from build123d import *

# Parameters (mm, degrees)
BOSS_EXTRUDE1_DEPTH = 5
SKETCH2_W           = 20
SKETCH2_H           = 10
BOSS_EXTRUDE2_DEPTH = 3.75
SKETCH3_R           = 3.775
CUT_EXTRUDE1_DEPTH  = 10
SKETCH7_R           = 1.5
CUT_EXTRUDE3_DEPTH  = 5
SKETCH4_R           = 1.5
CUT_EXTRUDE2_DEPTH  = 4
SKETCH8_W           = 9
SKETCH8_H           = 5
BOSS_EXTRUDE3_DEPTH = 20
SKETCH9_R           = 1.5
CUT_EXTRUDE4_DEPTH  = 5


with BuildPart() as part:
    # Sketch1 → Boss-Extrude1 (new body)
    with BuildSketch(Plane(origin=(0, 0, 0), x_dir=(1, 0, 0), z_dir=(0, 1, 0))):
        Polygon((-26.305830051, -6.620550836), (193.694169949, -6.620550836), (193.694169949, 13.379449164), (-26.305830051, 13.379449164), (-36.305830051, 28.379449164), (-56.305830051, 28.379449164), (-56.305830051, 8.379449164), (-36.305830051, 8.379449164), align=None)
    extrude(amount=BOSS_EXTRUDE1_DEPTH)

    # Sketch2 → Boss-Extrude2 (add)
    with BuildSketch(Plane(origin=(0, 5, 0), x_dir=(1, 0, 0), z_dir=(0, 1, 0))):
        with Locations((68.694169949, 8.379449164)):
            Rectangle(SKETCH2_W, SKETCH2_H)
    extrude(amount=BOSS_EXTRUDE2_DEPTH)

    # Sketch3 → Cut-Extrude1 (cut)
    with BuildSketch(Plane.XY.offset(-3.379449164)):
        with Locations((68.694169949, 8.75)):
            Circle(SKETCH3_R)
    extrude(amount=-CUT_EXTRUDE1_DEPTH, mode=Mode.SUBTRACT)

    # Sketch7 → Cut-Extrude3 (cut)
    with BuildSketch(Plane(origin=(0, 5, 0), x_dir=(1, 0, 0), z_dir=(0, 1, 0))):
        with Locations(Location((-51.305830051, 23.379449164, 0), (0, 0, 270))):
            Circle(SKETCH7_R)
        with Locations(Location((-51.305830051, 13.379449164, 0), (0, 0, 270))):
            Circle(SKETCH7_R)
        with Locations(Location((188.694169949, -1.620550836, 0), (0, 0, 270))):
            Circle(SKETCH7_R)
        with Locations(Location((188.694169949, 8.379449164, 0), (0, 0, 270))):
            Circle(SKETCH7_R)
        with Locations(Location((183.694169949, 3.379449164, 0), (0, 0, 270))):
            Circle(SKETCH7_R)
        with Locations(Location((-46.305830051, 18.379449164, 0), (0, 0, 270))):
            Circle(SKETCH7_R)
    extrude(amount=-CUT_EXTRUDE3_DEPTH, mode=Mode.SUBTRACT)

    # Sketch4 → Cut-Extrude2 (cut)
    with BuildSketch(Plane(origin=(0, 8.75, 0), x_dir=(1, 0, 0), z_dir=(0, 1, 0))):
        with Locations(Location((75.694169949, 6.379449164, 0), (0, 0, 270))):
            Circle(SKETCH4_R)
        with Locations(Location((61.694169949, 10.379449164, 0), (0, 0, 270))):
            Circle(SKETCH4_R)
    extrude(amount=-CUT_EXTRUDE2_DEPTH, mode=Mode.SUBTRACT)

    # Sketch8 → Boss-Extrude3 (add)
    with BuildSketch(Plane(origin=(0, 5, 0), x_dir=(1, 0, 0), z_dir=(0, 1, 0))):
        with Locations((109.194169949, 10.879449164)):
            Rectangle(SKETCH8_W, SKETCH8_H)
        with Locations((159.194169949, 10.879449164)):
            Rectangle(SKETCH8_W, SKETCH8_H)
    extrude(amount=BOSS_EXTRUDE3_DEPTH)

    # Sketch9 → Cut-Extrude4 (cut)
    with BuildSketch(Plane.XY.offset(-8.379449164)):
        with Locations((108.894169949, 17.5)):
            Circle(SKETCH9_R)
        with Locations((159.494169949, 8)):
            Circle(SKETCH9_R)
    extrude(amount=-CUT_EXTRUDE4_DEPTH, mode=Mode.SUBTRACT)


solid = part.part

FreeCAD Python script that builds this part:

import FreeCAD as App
import Part
import Sketcher
from FreeCAD import Vector


def add_polygon(sketch, points):
    """Adds a closed chain of lines whose ends are joined by coincident constraints."""
    first, n = sketch.GeometryCount, len(points)
    for a, b in zip(points, points[1:] + points[:1]):
        sketch.addGeometry(Part.LineSegment(App.Vector(*a, 0), App.Vector(*b, 0)), False)
    for i in range(n):
        sketch.addConstraint(Sketcher.Constraint("Coincident", first + i, 2, first + (i + 1) % n, 1))

doc = App.newDocument("Part")
body = doc.addObject("PartDesign::Body", "Body")

sketch1 = body.newObject("Sketcher::SketchObject", "Sketch")
sketch1.AttachmentSupport = (doc.getObject("XZ_Plane"), [""])
sketch1.MapMode = "FlatFace"
add_polygon(sketch1, [(-26, 7), (194, 7), (194, -13), (-26, -13), (-36, -28), (-56, -28), (-56, -8), (-36, -8)])
sketch1.addConstraint([
    Sketcher.Constraint("Horizontal", 0),
    Sketcher.Constraint("Vertical", 1),
    Sketcher.Constraint("Horizontal", 2),
    Sketcher.Constraint("Horizontal", 4),
    Sketcher.Constraint("Vertical", 5),
    Sketcher.Constraint("Horizontal", 6),
    Sketcher.Constraint("Parallel", 3, 7),
    Sketcher.Constraint("Vertical", 3, 2, 6, 2),
    Sketcher.Constraint("Vertical", 2, 2, 7, 2),
    Sketcher.Constraint("Equal", 6, 1),
    Sketcher.Constraint("DistanceX", 0, 1, 0, 2, 220.0),
    Sketcher.Constraint("DistanceX", 4, 2, 4, 1, 20.0),
    Sketcher.Constraint("DistanceX", 3, 2, 2, 2, 10.0),
    Sketcher.Constraint("DistanceY", 3, 2, 2, 2, 15.0),
    Sketcher.Constraint("DistanceX", -1, 1, 0, 2, 193.69417),
    Sketcher.Constraint("DistanceY", -1, 1, 0, 2, 6.620551),
])
pad1 = body.newObject("PartDesign::Pad", "Pad")
pad1.Profile = sketch1
pad1.Length = 5
pad1.Reversed = True

sketch2 = body.newObject("Sketcher::SketchObject", "Sketch001")
sketch2.AttachmentSupport = (doc.getObject("XZ_Plane"), [""])
sketch2.MapMode = "FlatFace"
sketch2.AttachmentOffset = App.Placement(Vector(0, 0, -5), App.Rotation())
add_polygon(sketch2, [(59, -13), (59, -3), (79, -3), (79, -13)])
sketch2.addConstraint([
    Sketcher.Constraint("Vertical", 0),
    Sketcher.Constraint("Horizontal", 1),
    Sketcher.Constraint("Vertical", 2),
    Sketcher.Constraint("Horizontal", 3),
    Sketcher.Constraint("DistanceX", 1, 1, 1, 2, 20.0),
    Sketcher.Constraint("DistanceY", 0, 1, 0, 2, 10.0),
    Sketcher.Constraint("DistanceX", -1, 1, 0, 2, 58.69417),
    Sketcher.Constraint("DistanceY", 0, 2, -1, 1, 3.379449),
])
pad2 = body.newObject("PartDesign::Pad", "Pad001")
pad2.Profile = sketch2
pad2.Length = 3.75
pad2.Reversed = True

sketch3 = body.newObject("Sketcher::SketchObject", "Sketch002")
sketch3.AttachmentSupport = (doc.getObject("XY_Plane"), [""])
sketch3.MapMode = "FlatFace"
sketch3.AttachmentOffset = App.Placement(Vector(0, 0, -3.379449), App.Rotation())
sketch3.addGeometry(Part.Circle(Vector(68.7, 8.8, 0), Vector(0, 0, 1), 3.8), False)
sketch3.addConstraint([
    Sketcher.Constraint("Diameter", 0, 7.55),
    Sketcher.Constraint("DistanceY", -1, 1, 0, 3, 8.75),
    Sketcher.Constraint("DistanceX", -1, 1, 0, 3, 68.69417),
])
pocket1 = body.newObject("PartDesign::Pocket", "Pocket")
pocket1.Profile = sketch3
pocket1.Length = 10

sketch4 = body.newObject("Sketcher::SketchObject", "Sketch003")
sketch4.AttachmentSupport = (doc.getObject("XZ_Plane"), [""])
sketch4.MapMode = "FlatFace"
sketch4.AttachmentOffset = App.Placement(Vector(0, 0, -5), App.Rotation())
sketch4.addGeometry([
    Part.Circle(Vector(-51.3, -23.4, 0), Vector(0, 0, 1), 1.5),
    Part.Circle(Vector(-51.3, -13.4, 0), Vector(0, 0, 1), 1.5),
    Part.Circle(Vector(188.7, 1.6, 0), Vector(0, 0, 1), 1.5),
    Part.Circle(Vector(188.7, -8.4, 0), Vector(0, 0, 1), 1.5),
    Part.Circle(Vector(183.7, -3.4, 0), Vector(0, 0, 1), 1.5),
    Part.Circle(Vector(-46.3, -18.4, 0), Vector(0, 0, 1), 1.5),
], False)
sketch4.addConstraint([
    Sketcher.Constraint("Equal", 0, 1),
    Sketcher.Constraint("Equal", 1, 2),
    Sketcher.Constraint("Equal", 2, 3),
    Sketcher.Constraint("Equal", 3, 4),
    Sketcher.Constraint("Equal", 4, 5),
    Sketcher.Constraint("Vertical", 0, 3, 1, 3),
    Sketcher.Constraint("Vertical", 2, 3, 3, 3),
    Sketcher.Constraint("Diameter", 0, 3.0),
    Sketcher.Constraint("DistanceY", 0, 3, 1, 3, 10.0),
    Sketcher.Constraint("DistanceX", 1, 3, 2, 3, 240.0),
    Sketcher.Constraint("DistanceY", 1, 3, 2, 3, 15.0),
    Sketcher.Constraint("DistanceY", 3, 3, 2, 3, 10.0),
    Sketcher.Constraint("DistanceX", 4, 3, 2, 3, 5.0),
    Sketcher.Constraint("DistanceY", 4, 3, 2, 3, 5.0),
    Sketcher.Constraint("DistanceX", 0, 3, 5, 3, 5.0),
    Sketcher.Constraint("DistanceY", 0, 3, 5, 3, 5.0),
    Sketcher.Constraint("DistanceX", 0, 3, -1, 1, 51.30583),
    Sketcher.Constraint("DistanceY", 0, 3, -1, 1, 23.379449),
])
pocket2 = body.newObject("PartDesign::Pocket", "Pocket001")
pocket2.Profile = sketch4
pocket2.Length = 5
pocket2.Reversed = True

sketch5 = body.newObject("Sketcher::SketchObject", "Sketch004")
sketch5.AttachmentSupport = (doc.getObject("XZ_Plane"), [""])
sketch5.MapMode = "FlatFace"
sketch5.AttachmentOffset = App.Placement(Vector(0, 0, -8.75), App.Rotation())
sketch5.addGeometry([
    Part.Circle(Vector(75.7, -6.4, 0), Vector(0, 0, 1), 1.5),
    Part.Circle(Vector(61.7, -10.4, 0), Vector(0, 0, 1), 1.5),
], False)
sketch5.addConstraint([
    Sketcher.Constraint("Equal", 0, 1),
    Sketcher.Constraint("Diameter", 0, 3.0),
    Sketcher.Constraint("DistanceX", 1, 3, 0, 3, 14.0),
    Sketcher.Constraint("DistanceY", 1, 3, 0, 3, 4.0),
    Sketcher.Constraint("DistanceX", -1, 1, 0, 3, 75.69417),
    Sketcher.Constraint("DistanceY", 0, 3, -1, 1, 6.379449),
])
pocket3 = body.newObject("PartDesign::Pocket", "Pocket002")
pocket3.Profile = sketch5
pocket3.Length = 4
pocket3.Reversed = True

sketch6 = body.newObject("Sketcher::SketchObject", "Sketch005")
sketch6.AttachmentSupport = (doc.getObject("XZ_Plane"), [""])
sketch6.MapMode = "FlatFace"
sketch6.AttachmentOffset = App.Placement(Vector(0, 0, -5), App.Rotation())
add_polygon(sketch6, [(105, -13), (105, -8), (114, -8), (114, -13)])
add_polygon(sketch6, [(155, -13), (155, -8), (164, -8), (164, -13)])
sketch6.addConstraint([
    Sketcher.Constraint("Vertical", 0),
    Sketcher.Constraint("Horizontal", 1),
    Sketcher.Constraint("Vertical", 2),
    Sketcher.Constraint("Horizontal", 3),
    Sketcher.Constraint("Vertical", 4),
    Sketcher.Constraint("Horizontal", 5),
    Sketcher.Constraint("Vertical", 6),
    Sketcher.Constraint("Horizontal", 7),
    Sketcher.Constraint("Horizontal", 1, 2, 4, 2),
    Sketcher.Constraint("Horizontal", 3, 2, 6, 2),
    Sketcher.Constraint("Equal", 3, 5),
    Sketcher.Constraint("DistanceX", 1, 1, 1, 2, 9.0),
    Sketcher.Constraint("DistanceY", 0, 1, 0, 2, 5.0),
    Sketcher.Constraint("DistanceX", 1, 2, 4, 2, 41.0),
    Sketcher.Constraint("DistanceX", -1, 1, 0, 2, 104.69417),
    Sketcher.Constraint("DistanceY", 0, 2, -1, 1, 8.379449),
])
pad3 = body.newObject("PartDesign::Pad", "Pad002")
pad3.Profile = sketch6
pad3.Length = 20
pad3.Reversed = True

sketch7 = body.newObject("Sketcher::SketchObject", "Sketch006")
sketch7.AttachmentSupport = (doc.getObject("XY_Plane"), [""])
sketch7.MapMode = "FlatFace"
sketch7.AttachmentOffset = App.Placement(Vector(0, 0, -8.379449), App.Rotation())
sketch7.addGeometry([
    Part.Circle(Vector(108.9, 17.5, 0), Vector(0, 0, 1), 1.5),
    Part.Circle(Vector(159.5, 8, 0), Vector(0, 0, 1), 1.5),
], False)
sketch7.addConstraint([
    Sketcher.Constraint("Equal", 0, 1),
    Sketcher.Constraint("Diameter", 0, 3.0),
    Sketcher.Constraint("DistanceY", -1, 1, 1, 3, 8.0),
    Sketcher.Constraint("DistanceY", -1, 1, 0, 3, 17.5),
    Sketcher.Constraint("DistanceX", 0, 3, 1, 3, 50.6),
    Sketcher.Constraint("DistanceX", -1, 1, 0, 3, 108.89417),
])
pocket4 = body.newObject("PartDesign::Pocket", "Pocket003")
pocket4.Profile = sketch7
pocket4.Length = 5

doc.recompute()
